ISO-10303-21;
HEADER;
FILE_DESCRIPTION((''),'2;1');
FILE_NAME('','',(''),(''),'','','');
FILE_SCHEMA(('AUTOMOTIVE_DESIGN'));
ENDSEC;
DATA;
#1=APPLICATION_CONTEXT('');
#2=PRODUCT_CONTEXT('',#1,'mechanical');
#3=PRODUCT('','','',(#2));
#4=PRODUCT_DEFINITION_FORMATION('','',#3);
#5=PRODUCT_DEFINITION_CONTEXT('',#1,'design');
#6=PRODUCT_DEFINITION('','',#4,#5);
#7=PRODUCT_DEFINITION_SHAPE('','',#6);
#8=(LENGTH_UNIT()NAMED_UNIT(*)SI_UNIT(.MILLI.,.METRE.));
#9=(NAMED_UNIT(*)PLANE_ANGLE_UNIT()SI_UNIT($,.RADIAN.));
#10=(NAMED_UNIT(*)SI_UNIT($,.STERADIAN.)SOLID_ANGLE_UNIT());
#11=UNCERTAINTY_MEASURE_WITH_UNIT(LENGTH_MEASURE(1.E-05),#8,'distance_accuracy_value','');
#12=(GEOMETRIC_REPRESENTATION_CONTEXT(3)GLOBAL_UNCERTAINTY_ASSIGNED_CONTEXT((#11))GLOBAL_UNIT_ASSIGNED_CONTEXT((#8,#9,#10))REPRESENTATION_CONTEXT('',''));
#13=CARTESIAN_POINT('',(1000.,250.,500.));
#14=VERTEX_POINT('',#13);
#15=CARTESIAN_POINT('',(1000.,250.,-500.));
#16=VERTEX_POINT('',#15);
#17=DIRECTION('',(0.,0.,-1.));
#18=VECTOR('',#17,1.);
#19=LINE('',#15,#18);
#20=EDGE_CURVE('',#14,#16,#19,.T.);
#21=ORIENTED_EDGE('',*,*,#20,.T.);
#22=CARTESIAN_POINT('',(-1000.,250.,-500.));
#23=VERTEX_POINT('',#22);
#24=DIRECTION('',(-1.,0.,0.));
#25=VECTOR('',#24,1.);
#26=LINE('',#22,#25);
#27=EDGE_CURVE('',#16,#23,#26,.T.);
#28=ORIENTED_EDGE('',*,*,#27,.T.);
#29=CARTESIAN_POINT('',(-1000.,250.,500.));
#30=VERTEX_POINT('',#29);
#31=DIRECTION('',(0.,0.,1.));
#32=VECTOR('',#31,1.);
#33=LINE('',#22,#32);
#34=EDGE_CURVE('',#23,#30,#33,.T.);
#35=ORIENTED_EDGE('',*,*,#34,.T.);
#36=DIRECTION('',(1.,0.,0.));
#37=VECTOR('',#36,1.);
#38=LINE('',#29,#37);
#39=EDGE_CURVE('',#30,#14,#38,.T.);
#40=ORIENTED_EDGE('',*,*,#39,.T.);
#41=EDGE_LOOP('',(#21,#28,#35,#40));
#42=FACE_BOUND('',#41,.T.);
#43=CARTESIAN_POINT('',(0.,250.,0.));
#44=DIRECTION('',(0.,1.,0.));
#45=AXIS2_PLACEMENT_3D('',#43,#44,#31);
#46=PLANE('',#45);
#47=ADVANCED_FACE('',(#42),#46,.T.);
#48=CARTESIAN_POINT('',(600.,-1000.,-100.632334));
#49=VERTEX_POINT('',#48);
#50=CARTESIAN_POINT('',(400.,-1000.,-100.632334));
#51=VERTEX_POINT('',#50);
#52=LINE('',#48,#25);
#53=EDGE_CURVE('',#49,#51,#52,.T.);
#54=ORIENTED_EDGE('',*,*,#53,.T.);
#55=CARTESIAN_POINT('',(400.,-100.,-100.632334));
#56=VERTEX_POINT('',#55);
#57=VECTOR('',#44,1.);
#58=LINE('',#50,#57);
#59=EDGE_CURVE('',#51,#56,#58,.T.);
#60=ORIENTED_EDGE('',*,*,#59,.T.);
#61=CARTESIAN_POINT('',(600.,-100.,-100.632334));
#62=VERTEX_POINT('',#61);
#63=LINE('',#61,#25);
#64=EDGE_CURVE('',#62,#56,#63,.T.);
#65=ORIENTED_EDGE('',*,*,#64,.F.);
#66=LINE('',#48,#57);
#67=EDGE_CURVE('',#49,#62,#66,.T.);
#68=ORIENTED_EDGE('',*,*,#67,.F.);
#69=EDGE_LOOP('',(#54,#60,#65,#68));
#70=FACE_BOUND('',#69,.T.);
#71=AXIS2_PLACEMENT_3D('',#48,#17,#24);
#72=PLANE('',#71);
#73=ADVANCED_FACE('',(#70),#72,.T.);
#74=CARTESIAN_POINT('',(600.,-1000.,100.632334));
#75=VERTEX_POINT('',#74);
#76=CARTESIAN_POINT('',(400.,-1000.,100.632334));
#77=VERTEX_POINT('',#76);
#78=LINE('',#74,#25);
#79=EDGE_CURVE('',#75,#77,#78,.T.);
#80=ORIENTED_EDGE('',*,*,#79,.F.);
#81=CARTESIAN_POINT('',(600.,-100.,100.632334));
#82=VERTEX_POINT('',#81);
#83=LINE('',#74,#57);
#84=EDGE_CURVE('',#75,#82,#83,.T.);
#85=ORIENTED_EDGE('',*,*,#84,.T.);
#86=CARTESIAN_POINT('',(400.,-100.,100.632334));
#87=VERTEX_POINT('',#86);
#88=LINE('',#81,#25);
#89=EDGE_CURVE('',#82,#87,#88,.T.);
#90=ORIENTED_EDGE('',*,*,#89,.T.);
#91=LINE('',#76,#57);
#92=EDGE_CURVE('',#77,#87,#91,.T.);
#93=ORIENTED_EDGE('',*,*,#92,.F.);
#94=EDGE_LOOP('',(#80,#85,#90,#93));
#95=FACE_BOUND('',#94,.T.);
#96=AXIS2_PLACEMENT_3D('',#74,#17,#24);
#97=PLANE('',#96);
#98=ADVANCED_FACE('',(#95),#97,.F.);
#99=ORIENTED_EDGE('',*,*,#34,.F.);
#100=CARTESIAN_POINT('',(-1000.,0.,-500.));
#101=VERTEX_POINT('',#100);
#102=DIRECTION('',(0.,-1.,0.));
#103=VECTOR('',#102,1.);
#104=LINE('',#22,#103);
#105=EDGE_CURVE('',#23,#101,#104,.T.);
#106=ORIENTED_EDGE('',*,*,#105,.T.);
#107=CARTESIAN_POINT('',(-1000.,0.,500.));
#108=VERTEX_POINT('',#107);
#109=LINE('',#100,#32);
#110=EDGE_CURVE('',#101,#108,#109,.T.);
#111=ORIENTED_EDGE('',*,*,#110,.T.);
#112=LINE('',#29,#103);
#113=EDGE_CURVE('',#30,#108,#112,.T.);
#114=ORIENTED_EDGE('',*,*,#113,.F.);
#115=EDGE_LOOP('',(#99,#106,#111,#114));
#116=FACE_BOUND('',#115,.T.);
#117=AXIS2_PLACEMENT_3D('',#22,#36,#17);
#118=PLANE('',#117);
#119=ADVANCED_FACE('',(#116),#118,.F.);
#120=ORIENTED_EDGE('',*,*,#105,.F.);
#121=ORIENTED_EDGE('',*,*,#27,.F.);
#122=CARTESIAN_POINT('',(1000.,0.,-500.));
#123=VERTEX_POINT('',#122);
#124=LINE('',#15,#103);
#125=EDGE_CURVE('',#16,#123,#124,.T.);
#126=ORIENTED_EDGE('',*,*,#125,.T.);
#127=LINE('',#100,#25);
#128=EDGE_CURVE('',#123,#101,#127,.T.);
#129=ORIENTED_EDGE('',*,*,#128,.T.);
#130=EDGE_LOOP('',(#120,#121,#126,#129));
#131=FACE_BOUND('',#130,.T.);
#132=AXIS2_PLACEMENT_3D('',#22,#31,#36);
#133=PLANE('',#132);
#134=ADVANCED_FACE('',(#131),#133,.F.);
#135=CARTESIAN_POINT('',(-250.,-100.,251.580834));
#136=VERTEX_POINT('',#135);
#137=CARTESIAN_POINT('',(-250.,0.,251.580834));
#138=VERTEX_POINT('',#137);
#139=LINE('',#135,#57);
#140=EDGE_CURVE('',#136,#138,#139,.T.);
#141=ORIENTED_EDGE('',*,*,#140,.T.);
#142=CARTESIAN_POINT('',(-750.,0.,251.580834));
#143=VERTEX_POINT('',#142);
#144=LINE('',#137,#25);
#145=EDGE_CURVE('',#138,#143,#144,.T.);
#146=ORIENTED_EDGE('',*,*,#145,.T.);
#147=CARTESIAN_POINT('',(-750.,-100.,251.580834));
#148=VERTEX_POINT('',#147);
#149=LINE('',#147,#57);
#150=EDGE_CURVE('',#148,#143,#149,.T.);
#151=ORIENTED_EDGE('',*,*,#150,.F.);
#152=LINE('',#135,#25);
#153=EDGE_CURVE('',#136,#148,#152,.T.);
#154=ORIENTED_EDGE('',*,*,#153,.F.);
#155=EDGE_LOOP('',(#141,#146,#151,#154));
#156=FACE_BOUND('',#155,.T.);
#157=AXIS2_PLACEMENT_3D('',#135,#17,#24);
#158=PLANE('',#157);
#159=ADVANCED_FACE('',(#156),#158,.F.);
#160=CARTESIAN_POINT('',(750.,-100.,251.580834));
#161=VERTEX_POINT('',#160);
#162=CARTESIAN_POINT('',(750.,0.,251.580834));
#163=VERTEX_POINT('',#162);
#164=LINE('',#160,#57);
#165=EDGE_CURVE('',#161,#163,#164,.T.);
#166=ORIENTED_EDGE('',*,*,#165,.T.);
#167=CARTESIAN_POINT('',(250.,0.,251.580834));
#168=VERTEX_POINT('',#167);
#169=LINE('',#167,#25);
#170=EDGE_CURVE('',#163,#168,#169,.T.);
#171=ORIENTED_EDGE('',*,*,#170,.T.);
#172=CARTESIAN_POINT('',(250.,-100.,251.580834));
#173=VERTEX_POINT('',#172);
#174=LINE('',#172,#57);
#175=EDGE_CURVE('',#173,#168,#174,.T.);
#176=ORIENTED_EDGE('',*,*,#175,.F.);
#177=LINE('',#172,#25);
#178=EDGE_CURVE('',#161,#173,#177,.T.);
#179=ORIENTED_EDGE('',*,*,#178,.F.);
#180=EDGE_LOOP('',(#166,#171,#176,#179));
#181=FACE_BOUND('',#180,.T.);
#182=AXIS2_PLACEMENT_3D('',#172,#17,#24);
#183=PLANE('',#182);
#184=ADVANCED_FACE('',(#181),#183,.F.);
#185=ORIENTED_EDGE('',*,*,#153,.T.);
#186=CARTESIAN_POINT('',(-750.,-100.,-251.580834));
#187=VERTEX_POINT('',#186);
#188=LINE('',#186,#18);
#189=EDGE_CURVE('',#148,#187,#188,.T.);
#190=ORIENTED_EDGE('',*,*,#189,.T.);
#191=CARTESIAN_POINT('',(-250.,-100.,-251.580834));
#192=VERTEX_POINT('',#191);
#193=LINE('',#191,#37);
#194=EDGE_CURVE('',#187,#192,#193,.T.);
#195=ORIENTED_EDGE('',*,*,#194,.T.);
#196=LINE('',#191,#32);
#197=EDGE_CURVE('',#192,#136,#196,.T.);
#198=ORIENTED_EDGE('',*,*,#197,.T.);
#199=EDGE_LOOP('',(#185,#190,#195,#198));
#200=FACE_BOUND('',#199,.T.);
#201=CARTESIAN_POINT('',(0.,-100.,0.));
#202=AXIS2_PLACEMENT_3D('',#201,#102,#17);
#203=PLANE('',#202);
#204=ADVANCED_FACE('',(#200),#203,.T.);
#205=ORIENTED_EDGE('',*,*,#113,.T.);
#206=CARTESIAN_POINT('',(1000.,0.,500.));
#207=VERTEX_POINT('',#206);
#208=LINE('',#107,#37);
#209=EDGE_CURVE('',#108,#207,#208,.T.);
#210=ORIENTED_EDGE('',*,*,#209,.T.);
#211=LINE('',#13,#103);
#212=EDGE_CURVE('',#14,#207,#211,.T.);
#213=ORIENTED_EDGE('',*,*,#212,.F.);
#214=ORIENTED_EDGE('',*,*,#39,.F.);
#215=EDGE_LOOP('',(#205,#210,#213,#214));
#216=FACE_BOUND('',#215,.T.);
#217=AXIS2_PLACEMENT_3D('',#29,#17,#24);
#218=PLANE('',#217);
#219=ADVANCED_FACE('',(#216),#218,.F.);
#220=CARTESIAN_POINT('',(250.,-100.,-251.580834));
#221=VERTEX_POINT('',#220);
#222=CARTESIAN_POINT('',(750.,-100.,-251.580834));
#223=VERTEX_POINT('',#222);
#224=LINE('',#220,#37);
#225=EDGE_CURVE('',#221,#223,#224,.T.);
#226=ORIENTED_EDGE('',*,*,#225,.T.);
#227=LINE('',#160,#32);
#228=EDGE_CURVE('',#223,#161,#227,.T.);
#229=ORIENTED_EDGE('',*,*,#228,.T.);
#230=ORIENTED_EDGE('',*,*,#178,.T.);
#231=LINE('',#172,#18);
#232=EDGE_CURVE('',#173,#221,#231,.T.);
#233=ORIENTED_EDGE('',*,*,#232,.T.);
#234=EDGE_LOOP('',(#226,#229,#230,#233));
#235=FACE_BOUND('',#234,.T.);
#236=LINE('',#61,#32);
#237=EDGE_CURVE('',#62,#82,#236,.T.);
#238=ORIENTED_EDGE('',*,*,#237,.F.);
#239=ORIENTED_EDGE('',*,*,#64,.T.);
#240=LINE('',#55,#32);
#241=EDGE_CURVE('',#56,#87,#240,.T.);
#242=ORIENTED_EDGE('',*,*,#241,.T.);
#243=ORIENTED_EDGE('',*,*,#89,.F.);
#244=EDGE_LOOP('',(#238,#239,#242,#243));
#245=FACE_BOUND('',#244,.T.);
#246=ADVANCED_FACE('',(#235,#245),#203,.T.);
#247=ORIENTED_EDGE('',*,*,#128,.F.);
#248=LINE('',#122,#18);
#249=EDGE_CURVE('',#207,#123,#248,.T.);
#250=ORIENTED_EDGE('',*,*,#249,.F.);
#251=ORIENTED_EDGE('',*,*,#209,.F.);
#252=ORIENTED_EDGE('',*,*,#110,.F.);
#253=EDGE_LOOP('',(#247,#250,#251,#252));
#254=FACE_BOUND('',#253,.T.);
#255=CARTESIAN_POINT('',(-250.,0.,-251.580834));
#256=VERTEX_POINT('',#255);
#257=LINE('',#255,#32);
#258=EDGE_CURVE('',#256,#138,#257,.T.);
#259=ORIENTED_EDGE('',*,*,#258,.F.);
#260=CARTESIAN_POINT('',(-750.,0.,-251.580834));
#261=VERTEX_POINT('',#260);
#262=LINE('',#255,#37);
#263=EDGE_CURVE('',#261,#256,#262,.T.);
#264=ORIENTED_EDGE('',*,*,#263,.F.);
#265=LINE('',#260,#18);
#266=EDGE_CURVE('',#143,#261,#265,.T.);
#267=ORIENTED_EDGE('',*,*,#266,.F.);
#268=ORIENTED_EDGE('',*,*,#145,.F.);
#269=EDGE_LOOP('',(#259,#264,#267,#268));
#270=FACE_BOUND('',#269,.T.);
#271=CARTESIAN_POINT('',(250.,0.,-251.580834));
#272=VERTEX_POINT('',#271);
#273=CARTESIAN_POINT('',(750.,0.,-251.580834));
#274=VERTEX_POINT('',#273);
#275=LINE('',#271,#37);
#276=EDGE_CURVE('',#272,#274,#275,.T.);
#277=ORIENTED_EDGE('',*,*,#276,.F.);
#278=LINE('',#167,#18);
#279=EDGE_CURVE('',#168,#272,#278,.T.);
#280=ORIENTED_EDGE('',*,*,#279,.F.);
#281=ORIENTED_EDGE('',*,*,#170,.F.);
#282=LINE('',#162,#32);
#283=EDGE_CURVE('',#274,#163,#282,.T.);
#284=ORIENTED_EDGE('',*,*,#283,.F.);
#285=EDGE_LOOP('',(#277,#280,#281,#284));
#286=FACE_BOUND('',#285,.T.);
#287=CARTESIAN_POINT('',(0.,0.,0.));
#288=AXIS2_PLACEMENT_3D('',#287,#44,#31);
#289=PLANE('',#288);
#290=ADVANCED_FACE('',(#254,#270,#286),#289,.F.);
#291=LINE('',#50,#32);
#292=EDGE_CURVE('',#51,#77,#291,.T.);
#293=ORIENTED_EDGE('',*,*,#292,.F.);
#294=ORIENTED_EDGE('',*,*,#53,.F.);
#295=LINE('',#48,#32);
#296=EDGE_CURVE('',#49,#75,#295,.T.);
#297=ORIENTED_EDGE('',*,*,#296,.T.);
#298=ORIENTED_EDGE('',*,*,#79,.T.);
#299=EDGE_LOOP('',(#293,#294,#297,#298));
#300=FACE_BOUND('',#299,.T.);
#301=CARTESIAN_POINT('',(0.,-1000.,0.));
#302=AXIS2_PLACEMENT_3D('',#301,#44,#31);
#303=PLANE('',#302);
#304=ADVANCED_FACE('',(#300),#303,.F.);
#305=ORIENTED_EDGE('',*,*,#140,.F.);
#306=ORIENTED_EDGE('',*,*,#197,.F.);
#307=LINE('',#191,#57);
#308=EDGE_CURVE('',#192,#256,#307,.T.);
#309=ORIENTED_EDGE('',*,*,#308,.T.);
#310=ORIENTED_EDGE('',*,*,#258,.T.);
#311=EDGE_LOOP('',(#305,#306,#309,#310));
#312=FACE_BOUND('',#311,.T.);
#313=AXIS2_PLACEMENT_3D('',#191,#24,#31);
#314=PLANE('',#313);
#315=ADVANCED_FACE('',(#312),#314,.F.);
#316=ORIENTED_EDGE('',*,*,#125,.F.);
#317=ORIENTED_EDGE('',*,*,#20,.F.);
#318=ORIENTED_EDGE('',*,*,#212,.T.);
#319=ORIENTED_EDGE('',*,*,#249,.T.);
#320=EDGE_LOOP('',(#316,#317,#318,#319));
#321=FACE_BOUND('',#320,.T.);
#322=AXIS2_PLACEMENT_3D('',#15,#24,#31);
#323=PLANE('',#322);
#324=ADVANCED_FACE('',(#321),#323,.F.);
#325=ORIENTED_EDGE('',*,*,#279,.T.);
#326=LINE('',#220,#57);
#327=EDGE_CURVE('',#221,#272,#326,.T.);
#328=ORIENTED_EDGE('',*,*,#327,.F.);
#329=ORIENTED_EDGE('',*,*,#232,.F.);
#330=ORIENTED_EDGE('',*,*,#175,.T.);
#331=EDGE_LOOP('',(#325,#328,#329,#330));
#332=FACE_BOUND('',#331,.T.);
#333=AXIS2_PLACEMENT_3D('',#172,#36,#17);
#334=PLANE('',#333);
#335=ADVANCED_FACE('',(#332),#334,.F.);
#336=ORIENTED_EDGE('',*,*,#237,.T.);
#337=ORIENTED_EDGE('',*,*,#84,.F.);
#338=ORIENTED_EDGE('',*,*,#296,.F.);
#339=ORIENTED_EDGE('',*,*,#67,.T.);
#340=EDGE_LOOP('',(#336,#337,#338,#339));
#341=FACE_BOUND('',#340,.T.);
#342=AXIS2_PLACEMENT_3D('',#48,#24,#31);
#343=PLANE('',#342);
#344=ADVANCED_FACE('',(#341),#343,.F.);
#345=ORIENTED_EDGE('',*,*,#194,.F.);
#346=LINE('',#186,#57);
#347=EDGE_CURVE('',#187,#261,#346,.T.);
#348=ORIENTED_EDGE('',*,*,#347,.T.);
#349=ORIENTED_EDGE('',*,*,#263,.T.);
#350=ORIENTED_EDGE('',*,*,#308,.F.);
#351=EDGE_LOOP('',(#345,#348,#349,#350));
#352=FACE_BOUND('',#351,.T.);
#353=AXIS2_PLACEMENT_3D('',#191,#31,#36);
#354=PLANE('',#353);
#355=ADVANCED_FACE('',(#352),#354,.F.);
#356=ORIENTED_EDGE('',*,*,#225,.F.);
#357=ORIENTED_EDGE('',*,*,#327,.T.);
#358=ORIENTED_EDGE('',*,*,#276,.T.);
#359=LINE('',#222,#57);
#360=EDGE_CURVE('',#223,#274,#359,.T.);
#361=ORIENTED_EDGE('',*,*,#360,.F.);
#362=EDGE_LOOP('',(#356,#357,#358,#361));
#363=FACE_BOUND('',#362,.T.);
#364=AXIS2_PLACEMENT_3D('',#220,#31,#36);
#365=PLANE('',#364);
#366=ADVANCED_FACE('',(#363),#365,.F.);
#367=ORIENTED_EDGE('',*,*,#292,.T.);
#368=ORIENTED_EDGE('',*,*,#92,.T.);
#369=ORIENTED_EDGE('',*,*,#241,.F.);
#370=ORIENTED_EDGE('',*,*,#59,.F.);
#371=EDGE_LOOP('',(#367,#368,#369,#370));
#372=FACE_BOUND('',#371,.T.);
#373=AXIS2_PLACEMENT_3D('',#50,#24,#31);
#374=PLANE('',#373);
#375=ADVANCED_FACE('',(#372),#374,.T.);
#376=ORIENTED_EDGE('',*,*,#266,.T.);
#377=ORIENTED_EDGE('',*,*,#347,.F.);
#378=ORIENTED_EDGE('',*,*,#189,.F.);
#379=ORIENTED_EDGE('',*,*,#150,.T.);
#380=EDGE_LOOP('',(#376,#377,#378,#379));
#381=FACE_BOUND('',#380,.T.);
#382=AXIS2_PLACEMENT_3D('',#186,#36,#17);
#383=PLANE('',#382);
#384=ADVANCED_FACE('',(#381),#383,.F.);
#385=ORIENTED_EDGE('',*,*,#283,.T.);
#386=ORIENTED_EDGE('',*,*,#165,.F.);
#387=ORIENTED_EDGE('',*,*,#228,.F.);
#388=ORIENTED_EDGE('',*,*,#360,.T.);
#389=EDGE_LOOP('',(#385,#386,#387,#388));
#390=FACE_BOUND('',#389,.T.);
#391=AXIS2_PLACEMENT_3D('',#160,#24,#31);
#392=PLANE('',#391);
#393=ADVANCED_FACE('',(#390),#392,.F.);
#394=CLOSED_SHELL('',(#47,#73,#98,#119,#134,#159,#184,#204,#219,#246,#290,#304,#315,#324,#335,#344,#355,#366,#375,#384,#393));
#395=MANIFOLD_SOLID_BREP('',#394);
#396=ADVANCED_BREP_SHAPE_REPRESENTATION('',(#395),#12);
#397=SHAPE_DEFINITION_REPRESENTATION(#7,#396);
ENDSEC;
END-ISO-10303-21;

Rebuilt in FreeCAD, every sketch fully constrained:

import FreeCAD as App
import Part
import Sketcher

V = App.Vector
Q = App.Units.Quantity

doc = App.newDocument("Part")
body = doc.addObject("PartDesign::Body", "Body")

sketch1 = body.newObject("Sketcher::SketchObject", "Sketch")
sketch1.AttachmentSupport = (doc.getObject("XZ_Plane"), [""])
sketch1.MapMode = "FlatFace"
sketch1.addGeometry(Part.LineSegment(V(-1000, -500, 0), V(-1000, 500, 0)), False)
sketch1.addGeometry(Part.LineSegment(V(-1000, 500, 0), V(1000, 500, 0)), False)
sketch1.addGeometry(Part.LineSegment(V(1000, 500, 0), V(1000, -500, 0)), False)
sketch1.addGeometry(Part.LineSegment(V(1000, -500, 0), V(-1000, -500, 0)), False)
sketch1.addConstraint(Sketcher.Constraint("Coincident", 0, 2, 1, 1))
sketch1.addConstraint(Sketcher.Constraint("Coincident", 1, 2, 2, 1))
sketch1.addConstraint(Sketcher.Constraint("Coincident", 2, 2, 3, 1))
sketch1.addConstraint(Sketcher.Constraint("Coincident", 3, 2, 0, 1))
sketch1.addConstraint(Sketcher.Constraint("Vertical", 0))
sketch1.addConstraint(Sketcher.Constraint("Horizontal", 1))
sketch1.addConstraint(Sketcher.Constraint("Vertical", 2))
sketch1.addConstraint(Sketcher.Constraint("Horizontal", 3))
sketch1.addConstraint(Sketcher.Constraint("Symmetric", 0, 2, 2, 2, -1, 1))
sketch1.addConstraint(Sketcher.Constraint("DistanceX", 1, 1, 1, 2, Q("2000 mm")))
sketch1.addConstraint(Sketcher.Constraint("DistanceY", 0, 1, 0, 2, Q("1000 mm")))
pad1 = body.newObject("PartDesign::Pad", "Pad")
pad1.Profile = sketch1
pad1.Length = 250
pad1.Reversed = True

sketch2 = body.newObject("Sketcher::SketchObject", "Sketch001")
sketch2.AttachmentSupport = (doc.getObject("XZ_Plane"), [""])
sketch2.MapMode = "FlatFace"
sketch2.addGeometry(Part.LineSegment(V(-750, 252, 0), V(-750, -252, 0)), False)
sketch2.addGeometry(Part.LineSegment(V(-750, -252, 0), V(-250, -252, 0)), False)
sketch2.addGeometry(Part.LineSegment(V(-250, -252, 0), V(-250, 252, 0)), False)
sketch2.addGeometry(Part.LineSegment(V(-250, 252, 0), V(-750, 252, 0)), False)
sketch2.addGeometry(Part.LineSegment(V(250, 252, 0), V(250, -252, 0)), False)
sketch2.addGeometry(Part.LineSegment(V(250, -252, 0), V(750, -252, 0)), False)
sketch2.addGeometry(Part.LineSegment(V(750, -252, 0), V(750, 252, 0)), False)
sketch2.addGeometry(Part.LineSegment(V(750, 252, 0), V(250, 252, 0)), False)
sketch2.addConstraint(Sketcher.Constraint("Coincident", 0, 2, 1, 1))
sketch2.addConstraint(Sketcher.Constraint("Coincident", 1, 2, 2, 1))
sketch2.addConstraint(Sketcher.Constraint("Coincident", 2, 2, 3, 1))
sketch2.addConstraint(Sketcher.Constraint("Coincident", 3, 2, 0, 1))
sketch2.addConstraint(Sketcher.Constraint("Coincident", 4, 2, 5, 1))
sketch2.addConstraint(Sketcher.Constraint("Coincident", 5, 2, 6, 1))
sketch2.addConstraint(Sketcher.Constraint("Coincident", 6, 2, 7, 1))
sketch2.addConstraint(Sketcher.Constraint("Coincident", 7, 2, 4, 1))
sketch2.addConstraint(Sketcher.Constraint("Vertical", 0))
sketch2.addConstraint(Sketcher.Constraint("Horizontal", 1))
sketch2.addConstraint(Sketcher.Constraint("Vertical", 2))
sketch2.addConstraint(Sketcher.Constraint("Horizontal", 3))
sketch2.addConstraint(Sketcher.Constraint("Vertical", 4))
sketch2.addConstraint(Sketcher.Constraint("Horizontal", 5))
sketch2.addConstraint(Sketcher.Constraint("Vertical", 6))
sketch2.addConstraint(Sketcher.Constraint("Horizontal", 7))
sketch2.addConstraint(Sketcher.Constraint("Symmetric", 2, 2, 4, 2, -1, 1))
sketch2.addConstraint(Sketcher.Constraint("Symmetric", 0, 2, 6, 2, -1, 1))
sketch2.addConstraint(Sketcher.Constraint("Horizontal", 1, 2, 4, 2))
sketch2.addConstraint(Sketcher.Constraint("DistanceX", 1, 1, 1, 2, Q("500 mm")))
sketch2.addConstraint(Sketcher.Constraint("DistanceX", 0, 2, -1, 1, Q("750 mm")))
sketch2.addConstraint(Sketcher.Constraint("DistanceY", 0, 2, 0, 1, Q("503.161669 mm")))
pad2 = body.newObject("PartDesign::Pad", "Pad001")
pad2.Profile = sketch2
pad2.Length = 100

sketch3 = body.newObject("Sketcher::SketchObject", "Sketch002")
sketch3.AttachmentSupport = (doc.getObject("XZ_Plane"), [""])
sketch3.MapMode = "FlatFace"
sketch3.AttachmentOffset = App.Placement(V(0, 0, 100), App.Rotation())
sketch3.addGeometry(Part.LineSegment(V(400, 101, 0), V(400, -101, 0)), False)
sketch3.addGeometry(Part.LineSegment(V(400, -101, 0), V(600, -101, 0)), False)
sketch3.addGeometry(Part.LineSegment(V(600, -101, 0), V(600, 101, 0)), False)
sketch3.addGeometry(Part.LineSegment(V(600, 101, 0), V(400, 101, 0)), False)
sketch3.addConstraint(Sketcher.Constraint("Coincident", 0, 2, 1, 1))
sketch3.addConstraint(Sketcher.Constraint("Coincident", 1, 2, 2, 1))
sketch3.addConstraint(Sketcher.Constraint("Coincident", 2, 2, 3, 1))
sketch3.addConstraint(Sketcher.Constraint("Coincident", 3, 2, 0, 1))
sketch3.addConstraint(Sketcher.Constraint("Vertical", 0))
sketch3.addConstraint(Sketcher.Constraint("Horizontal", 1))
sketch3.addConstraint(Sketcher.Constraint("Vertical", 2))
sketch3.addConstraint(Sketcher.Constraint("Horizontal", 3))
sketch3.addConstraint(Sketcher.Constraint("DistanceX", 1, 1, 1, 2, Q("200 mm")))
sketch3.addConstraint(Sketcher.Constraint("DistanceX", -1, 1, 0, 2, Q("400 mm")))
sketch3.addConstraint(Sketcher.Constraint("DistanceY", 0, 2, 0, 1, Q("201.264668 mm")))
sketch3.addConstraint(Sketcher.Constraint("DistanceY", 0, 2, -1, 1, Q("100.632334 mm")))
pad3 = body.newObject("PartDesign::Pad", "Pad002")
pad3.Profile = sketch3
pad3.Length = 900

doc.recompute()
